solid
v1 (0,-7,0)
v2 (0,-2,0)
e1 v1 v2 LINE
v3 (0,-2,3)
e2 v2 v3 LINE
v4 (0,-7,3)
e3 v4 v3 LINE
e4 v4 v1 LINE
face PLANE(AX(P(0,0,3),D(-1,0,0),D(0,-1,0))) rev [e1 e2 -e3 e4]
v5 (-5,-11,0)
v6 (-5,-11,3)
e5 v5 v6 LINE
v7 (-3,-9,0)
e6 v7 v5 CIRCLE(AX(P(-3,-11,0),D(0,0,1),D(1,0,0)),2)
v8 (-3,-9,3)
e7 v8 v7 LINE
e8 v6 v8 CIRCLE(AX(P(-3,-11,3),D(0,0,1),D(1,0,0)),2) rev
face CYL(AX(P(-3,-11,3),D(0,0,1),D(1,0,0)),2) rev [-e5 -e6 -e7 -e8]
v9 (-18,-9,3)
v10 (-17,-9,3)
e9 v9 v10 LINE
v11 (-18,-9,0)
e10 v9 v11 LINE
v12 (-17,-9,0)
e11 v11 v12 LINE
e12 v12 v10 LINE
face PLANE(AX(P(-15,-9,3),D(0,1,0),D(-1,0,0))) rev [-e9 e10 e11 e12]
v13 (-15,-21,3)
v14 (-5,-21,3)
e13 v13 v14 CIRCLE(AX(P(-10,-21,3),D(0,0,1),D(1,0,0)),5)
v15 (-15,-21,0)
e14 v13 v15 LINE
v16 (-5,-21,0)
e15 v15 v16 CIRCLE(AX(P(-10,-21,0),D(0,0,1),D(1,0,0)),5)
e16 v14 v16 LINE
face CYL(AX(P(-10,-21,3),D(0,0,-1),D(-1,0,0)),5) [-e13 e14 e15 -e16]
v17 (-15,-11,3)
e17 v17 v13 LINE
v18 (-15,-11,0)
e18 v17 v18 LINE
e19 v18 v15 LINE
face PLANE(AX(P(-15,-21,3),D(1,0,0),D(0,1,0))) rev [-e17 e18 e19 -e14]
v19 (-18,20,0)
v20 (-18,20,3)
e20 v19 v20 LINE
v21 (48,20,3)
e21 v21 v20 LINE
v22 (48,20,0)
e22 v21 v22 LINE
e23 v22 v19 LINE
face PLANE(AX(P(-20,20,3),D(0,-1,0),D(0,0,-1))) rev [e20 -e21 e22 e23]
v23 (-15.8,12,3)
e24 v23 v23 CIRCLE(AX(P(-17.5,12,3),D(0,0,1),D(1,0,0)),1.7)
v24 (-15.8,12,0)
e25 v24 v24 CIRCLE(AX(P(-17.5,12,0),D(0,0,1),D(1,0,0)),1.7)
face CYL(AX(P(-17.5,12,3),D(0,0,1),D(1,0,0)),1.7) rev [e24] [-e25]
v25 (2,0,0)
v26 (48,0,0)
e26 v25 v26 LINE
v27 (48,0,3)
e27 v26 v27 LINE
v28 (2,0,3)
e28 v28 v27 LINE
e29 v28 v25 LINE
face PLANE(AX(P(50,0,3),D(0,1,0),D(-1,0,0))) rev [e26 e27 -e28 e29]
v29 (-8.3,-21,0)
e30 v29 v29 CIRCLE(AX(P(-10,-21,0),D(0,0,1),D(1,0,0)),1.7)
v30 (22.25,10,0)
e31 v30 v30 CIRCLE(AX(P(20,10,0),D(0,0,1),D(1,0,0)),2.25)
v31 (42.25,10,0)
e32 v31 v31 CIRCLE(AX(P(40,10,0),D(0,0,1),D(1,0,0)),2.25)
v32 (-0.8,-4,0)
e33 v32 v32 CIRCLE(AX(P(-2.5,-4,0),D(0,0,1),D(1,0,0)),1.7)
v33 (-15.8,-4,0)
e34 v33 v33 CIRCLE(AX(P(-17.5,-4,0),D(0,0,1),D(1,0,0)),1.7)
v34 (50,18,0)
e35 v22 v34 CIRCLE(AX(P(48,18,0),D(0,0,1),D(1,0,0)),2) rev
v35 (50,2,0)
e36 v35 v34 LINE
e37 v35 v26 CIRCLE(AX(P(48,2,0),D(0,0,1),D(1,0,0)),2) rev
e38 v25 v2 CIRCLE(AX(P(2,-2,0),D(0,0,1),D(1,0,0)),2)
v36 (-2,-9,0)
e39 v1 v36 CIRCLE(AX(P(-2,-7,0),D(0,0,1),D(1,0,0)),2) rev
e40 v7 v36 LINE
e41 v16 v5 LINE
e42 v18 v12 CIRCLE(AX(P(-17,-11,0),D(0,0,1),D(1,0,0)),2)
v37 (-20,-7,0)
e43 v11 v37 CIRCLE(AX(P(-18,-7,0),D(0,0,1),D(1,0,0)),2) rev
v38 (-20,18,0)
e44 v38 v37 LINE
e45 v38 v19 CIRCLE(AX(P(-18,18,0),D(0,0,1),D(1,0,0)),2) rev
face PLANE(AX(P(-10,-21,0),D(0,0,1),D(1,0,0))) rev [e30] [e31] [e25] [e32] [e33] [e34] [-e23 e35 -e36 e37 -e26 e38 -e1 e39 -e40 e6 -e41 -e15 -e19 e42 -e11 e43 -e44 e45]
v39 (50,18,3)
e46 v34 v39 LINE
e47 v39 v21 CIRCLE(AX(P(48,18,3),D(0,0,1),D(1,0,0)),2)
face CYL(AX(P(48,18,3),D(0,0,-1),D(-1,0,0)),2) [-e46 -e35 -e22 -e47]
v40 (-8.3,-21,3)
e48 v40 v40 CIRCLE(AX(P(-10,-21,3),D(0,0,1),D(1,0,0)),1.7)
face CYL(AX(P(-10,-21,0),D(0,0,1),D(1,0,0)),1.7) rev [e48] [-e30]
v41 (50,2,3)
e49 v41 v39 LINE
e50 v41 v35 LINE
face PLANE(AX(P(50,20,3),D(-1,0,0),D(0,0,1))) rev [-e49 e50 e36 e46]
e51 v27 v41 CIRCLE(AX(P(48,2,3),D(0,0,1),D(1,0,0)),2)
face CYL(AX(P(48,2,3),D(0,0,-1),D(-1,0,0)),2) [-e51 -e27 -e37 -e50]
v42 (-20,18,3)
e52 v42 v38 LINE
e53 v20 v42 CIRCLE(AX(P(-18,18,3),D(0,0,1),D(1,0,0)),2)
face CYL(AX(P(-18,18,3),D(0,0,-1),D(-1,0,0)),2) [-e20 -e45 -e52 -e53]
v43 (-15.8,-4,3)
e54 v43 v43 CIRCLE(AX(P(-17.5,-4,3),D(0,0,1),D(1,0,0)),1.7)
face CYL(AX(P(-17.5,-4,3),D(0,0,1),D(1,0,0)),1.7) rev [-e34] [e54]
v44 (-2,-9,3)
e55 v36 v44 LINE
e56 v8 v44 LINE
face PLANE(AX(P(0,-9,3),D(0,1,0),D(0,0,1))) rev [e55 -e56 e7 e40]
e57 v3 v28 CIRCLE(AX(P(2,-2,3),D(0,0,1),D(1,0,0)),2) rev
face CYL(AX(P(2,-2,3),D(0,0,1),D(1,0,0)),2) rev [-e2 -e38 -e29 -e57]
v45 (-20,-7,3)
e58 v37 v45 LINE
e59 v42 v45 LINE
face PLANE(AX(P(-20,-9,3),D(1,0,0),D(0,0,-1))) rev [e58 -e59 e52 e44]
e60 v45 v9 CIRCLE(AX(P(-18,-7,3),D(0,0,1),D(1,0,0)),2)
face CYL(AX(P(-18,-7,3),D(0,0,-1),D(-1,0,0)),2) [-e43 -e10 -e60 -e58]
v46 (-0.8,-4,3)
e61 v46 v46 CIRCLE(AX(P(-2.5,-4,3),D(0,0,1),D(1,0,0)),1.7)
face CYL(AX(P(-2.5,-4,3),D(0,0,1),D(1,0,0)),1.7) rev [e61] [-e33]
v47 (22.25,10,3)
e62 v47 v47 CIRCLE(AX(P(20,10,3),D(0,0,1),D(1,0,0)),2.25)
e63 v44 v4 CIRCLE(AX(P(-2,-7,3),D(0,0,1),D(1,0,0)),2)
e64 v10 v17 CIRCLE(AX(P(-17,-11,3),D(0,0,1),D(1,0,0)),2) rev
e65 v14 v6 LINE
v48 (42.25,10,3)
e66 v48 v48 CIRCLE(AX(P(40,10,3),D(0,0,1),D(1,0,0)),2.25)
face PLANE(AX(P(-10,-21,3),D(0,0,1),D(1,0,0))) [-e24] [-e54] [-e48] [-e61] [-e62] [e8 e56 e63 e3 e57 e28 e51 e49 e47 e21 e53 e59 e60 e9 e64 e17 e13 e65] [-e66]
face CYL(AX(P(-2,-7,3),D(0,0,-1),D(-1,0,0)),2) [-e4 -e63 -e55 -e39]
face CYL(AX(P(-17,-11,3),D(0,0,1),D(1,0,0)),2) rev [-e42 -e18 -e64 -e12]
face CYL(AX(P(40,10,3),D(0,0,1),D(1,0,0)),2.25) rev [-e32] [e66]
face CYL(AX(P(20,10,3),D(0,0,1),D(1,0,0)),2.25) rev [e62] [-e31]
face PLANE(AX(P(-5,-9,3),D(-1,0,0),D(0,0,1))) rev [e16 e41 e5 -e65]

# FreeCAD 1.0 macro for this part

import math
import FreeCAD as App
import Part
import Sketcher
from FreeCAD import Vector
Q = App.Units.Quantity


def edges_at(feature, points):
    """Names of the edges that pass closest to the given points."""
    edges = feature.Shape.Edges
    near = lambda p: min(range(len(edges)), key=lambda i: edges[i].distToShape(Part.Vertex(*p))[0])
    return sorted({f"Edge{near(p) + 1}" for p in points})

doc = App.newDocument("Part")
body = doc.addObject("PartDesign::Body", "Body")

# Sketch on XY plane
sketch1 = body.newObject("Sketcher::SketchObject", "Sketch")
sketch1.AttachmentSupport = (doc.getObject("XY_Plane"), [""])
sketch1.MapMode = "FlatFace"
sketch1.addGeometry([
    Part.LineSegment(Vector(0, -9, 0), Vector(0, 0, 0)),  # 0
    Part.LineSegment(Vector(0, 0, 0), Vector(50, 0, 0)),  # 1
    Part.LineSegment(Vector(50, 0, 0), Vector(50, 20, 0)),  # 2
    Part.LineSegment(Vector(50, 20, 0), Vector(-20, 20, 0)),  # 3
    Part.LineSegment(Vector(-20, 20, 0), Vector(-20, -9, 0)),  # 4
    Part.LineSegment(Vector(-20, -9, 0), Vector(-15, -9, 0)),  # 5
    Part.LineSegment(Vector(-15, -9, 0), Vector(-15, -21, 0)),  # 6
    Part.ArcOfCircle(Part.Circle(Vector(-10, -21, 0), Vector(0, 0, 1), 5), math.radians(180), math.radians(360)),  # 7
    Part.LineSegment(Vector(-5, -21, 0), Vector(-5, -9, 0)),  # 8
    Part.LineSegment(Vector(-5, -9, 0), Vector(0, -9, 0)),  # 9
], False)
sketch1.addConstraint([
    Sketcher.Constraint("Coincident", 0, 2, 1, 1),
    Sketcher.Constraint("Coincident", 1, 2, 2, 1),
    Sketcher.Constraint("Coincident", 2, 2, 3, 1),
    Sketcher.Constraint("Coincident", 3, 2, 4, 1),
    Sketcher.Constraint("Coincident", 4, 2, 5, 1),
    Sketcher.Constraint("Coincident", 5, 2, 6, 1),
    Sketcher.Constraint("Tangent", 6, 2, 7, 1),
    Sketcher.Constraint("Tangent", 7, 2, 8, 1),
    Sketcher.Constraint("Coincident", 8, 2, 9, 1),
    Sketcher.Constraint("Coincident", 9, 2, 0, 1),
    Sketcher.Constraint("Vertical", 0),
    Sketcher.Constraint("Horizontal", 1),
    Sketcher.Constraint("Vertical", 2),
    Sketcher.Constraint("Horizontal", 3),
    Sketcher.Constraint("Vertical", 4),
    Sketcher.Constraint("Horizontal", 5),
    Sketcher.Constraint("Vertical", 6),
    Sketcher.Constraint("Vertical", 8),
    Sketcher.Constraint("Horizontal", 9),
    Sketcher.Constraint("Coincident", 0, 2, -1, 1),
    Sketcher.Constraint("Horizontal", 5, 2, 8, 2),
    Sketcher.Constraint("Equal", 5, 9),
    Sketcher.Constraint("Radius", 7, Q("5 mm")),
    Sketcher.Constraint("DistanceX", 1, 1, 1, 2, Q("50 mm")),
    Sketcher.Constraint("DistanceX", 3, 2, 3, 1, Q("70 mm")),
    Sketcher.Constraint("DistanceY", 0, 1, 0, 2, Q("9 mm")),
    Sketcher.Constraint("DistanceY", 2, 1, 2, 2, Q("20 mm")),
    Sketcher.Constraint("DistanceY", 6, 2, 6, 1, Q("12 mm")),
])
pad1 = body.newObject("PartDesign::Pad", "Pad")
pad1.Profile = sketch1
pad1.Length = 3

# Sketch on XY plane
sketch2 = body.newObject("Sketcher::SketchObject", "Sketch001")
sketch2.AttachmentSupport = (doc.getObject("XY_Plane"), [""])
sketch2.MapMode = "FlatFace"
sketch2.AttachmentOffset = App.Placement(Vector(0, 0, 3), App.Rotation())
sketch2.addGeometry(Part.Circle(Vector(-10, -21, 0), Vector(0, 0, 1), 1.7), False)
sketch2.addConstraint([
    Sketcher.Constraint("Diameter", 0, Q("3.4 mm")),
    Sketcher.Constraint("DistanceX", 0, 3, -1, 1, Q("10 mm")),
    Sketcher.Constraint("DistanceY", 0, 3, -1, 1, Q("21 mm")),
])
pocket1 = body.newObject("PartDesign::Pocket", "Pocket")
pocket1.Profile = sketch2
pocket1.Type = "ThroughAll"

# Sketch on XY plane
sketch3 = body.newObject("Sketcher::SketchObject", "Sketch002")
sketch3.AttachmentSupport = (doc.getObject("XY_Plane"), [""])
sketch3.MapMode = "FlatFace"
sketch3.AttachmentOffset = App.Placement(Vector(0, 0, 3), App.Rotation())
sketch3.addGeometry([
    Part.Circle(Vector(20, 10, 0), Vector(0, 0, 1), 2.25),
    Part.Circle(Vector(40, 10, 0), Vector(0, 0, 1), 2.25),
], False)
sketch3.addConstraint([
    Sketcher.Constraint("Equal", 0, 1),
    Sketcher.Constraint("Horizontal", 0, 3, 1, 3),
    Sketcher.Constraint("Diameter", 0, Q("4.5 mm")),
    Sketcher.Constraint("DistanceX", -1, 1, 0, 3, Q("20 mm")),
    Sketcher.Constraint("DistanceY", -1, 1, 0, 3, Q("10 mm")),
    Sketcher.Constraint("DistanceX", -1, 1, 1, 3, Q("40 mm")),
])
doc.recompute()
hole = body.newObject("PartDesign::Hole", "Hole")
hole.Profile = sketch3
hole.ThreadType = "None"
hole.Diameter = 4.5
hole.DepthType = "ThroughAll"

# Sketch on XY plane
sketch4 = body.newObject("Sketcher::SketchObject", "Sketch003")
sketch4.AttachmentSupport = (doc.getObject("XY_Plane"), [""])
sketch4.MapMode = "FlatFace"
sketch4.AttachmentOffset = App.Placement(Vector(0, 0, 3), App.Rotation())
sketch4.addGeometry([
    Part.Circle(Vector(-17.5, 12, 0), Vector(0, 0, 1), 1.7),
    Part.Circle(Vector(-2.5, -4, 0), Vector(0, 0, 1), 1.7),
    Part.Circle(Vector(-17.5, -4, 0), Vector(0, 0, 1), 1.7),
], False)
sketch4.addConstraint([
    Sketcher.Constraint("Equal", 0, 1),
    Sketcher.Constraint("Equal", 1, 2),
    Sketcher.Constraint("Horizontal", 1, 3, 2, 3),
    Sketcher.Constraint("Vertical", 0, 3, 2, 3),
    Sketcher.Constraint("Diameter", 0, Q("3.4 mm")),
    Sketcher.Constraint("DistanceY", -1, 1, 0, 3, Q("12 mm")),
    Sketcher.Constraint("DistanceY", 1, 3, -1, 1, Q("4 mm")),
    Sketcher.Constraint("DistanceX", 0, 3, 1, 3, Q("15 mm")),
    Sketcher.Constraint("DistanceX", 0, 3, -1, 1, Q("17.5 mm")),
])
doc.recompute()
hole2 = body.newObject("PartDesign::Hole", "Hole001")
hole2.Profile = sketch4
hole2.ThreadType = "None"
hole2.Diameter = 3.4
hole2.DepthType = "ThroughAll"
doc.recompute()

fillet = body.newObject("PartDesign::Fillet", "Fillet")
fillet.Base = (hole2, edges_at(hole2, [
    (0, 0, 1.5),
    (0, -9, 1.5),
    (-5, -9, 1.5),
    (-15, -9, 1.5),
    (-20, -9, 1.5),
    (-20, 20, 1.5),
    (50, 20, 1.5),
    (50, 0, 1.5),
]))
fillet.Radius = 2

doc.recompute()
